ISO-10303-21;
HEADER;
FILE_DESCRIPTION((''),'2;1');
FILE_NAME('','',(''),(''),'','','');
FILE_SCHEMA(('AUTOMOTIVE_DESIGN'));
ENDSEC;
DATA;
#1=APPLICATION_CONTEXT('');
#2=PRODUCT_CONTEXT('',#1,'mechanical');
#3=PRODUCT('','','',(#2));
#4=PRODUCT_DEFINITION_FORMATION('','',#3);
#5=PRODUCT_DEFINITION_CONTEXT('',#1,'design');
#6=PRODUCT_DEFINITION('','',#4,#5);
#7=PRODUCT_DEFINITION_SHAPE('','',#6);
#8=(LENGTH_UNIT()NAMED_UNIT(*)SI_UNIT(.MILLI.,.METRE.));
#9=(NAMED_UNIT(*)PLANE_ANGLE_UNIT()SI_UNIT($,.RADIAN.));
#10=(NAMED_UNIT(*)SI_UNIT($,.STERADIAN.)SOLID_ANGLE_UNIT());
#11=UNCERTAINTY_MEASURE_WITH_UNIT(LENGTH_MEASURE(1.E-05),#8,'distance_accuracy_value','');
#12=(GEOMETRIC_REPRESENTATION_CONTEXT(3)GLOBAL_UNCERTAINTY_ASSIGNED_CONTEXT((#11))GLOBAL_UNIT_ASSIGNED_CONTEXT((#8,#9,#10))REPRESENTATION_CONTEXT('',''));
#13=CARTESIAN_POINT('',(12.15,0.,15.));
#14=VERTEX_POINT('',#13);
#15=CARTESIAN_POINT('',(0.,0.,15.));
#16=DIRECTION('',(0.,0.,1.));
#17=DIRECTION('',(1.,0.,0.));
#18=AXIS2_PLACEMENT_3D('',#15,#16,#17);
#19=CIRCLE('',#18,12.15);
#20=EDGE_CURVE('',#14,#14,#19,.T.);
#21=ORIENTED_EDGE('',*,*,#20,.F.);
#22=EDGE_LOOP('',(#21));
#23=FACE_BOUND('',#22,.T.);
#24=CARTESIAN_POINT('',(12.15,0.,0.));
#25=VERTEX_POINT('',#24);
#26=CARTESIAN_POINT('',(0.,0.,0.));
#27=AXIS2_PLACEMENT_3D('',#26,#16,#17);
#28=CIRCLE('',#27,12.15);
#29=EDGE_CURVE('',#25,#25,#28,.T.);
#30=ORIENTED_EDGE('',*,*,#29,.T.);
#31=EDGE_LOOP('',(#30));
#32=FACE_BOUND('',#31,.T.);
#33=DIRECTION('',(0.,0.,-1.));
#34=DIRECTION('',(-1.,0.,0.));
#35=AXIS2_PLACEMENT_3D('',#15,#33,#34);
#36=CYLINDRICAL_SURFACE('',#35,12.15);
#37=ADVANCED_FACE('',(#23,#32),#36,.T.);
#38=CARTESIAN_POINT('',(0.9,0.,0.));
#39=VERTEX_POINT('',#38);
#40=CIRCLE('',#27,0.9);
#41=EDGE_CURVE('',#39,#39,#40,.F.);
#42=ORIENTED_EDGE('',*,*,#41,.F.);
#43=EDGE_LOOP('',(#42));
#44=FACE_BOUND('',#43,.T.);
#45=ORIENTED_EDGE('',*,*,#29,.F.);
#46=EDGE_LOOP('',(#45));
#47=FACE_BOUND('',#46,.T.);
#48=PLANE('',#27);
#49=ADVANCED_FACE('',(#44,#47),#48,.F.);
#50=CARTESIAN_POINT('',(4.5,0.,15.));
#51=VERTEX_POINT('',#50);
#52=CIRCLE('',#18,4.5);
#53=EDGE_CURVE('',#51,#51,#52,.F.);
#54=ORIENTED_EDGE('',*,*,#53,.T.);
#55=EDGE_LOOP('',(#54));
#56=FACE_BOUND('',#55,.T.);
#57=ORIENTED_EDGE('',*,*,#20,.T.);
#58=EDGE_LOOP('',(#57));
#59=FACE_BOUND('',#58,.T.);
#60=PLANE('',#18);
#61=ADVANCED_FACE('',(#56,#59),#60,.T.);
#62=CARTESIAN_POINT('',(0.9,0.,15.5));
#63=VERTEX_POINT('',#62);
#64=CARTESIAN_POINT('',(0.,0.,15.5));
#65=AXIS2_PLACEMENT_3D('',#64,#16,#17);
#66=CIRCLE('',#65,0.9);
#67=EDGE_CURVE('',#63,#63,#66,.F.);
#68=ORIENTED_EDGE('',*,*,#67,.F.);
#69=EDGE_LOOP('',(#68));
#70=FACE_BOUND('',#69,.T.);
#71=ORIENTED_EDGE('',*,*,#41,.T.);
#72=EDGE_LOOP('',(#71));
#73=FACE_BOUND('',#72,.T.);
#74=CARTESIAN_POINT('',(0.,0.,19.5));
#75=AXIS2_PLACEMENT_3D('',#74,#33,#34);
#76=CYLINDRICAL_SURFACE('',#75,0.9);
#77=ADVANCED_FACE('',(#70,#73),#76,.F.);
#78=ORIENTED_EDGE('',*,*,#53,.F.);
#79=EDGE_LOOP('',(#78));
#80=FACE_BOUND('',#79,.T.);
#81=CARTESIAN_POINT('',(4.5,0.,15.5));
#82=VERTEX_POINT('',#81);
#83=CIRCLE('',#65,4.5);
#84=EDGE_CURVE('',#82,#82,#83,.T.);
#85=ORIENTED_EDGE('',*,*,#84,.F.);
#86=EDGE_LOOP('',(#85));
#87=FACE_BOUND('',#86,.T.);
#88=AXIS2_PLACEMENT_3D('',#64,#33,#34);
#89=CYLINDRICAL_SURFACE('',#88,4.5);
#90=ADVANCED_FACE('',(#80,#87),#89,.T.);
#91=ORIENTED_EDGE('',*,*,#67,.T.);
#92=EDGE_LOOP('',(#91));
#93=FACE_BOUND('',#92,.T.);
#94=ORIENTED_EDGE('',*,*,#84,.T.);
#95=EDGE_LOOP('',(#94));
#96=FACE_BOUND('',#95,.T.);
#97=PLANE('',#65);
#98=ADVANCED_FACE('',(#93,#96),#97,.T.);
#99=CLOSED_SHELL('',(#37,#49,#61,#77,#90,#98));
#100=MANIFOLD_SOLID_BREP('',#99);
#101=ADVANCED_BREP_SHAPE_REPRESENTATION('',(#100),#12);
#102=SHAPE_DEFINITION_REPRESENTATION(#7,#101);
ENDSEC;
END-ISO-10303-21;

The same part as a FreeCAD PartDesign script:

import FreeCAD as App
import Part
import Sketcher

doc = App.newDocument("Part")
params = doc.addObject("Spreadsheet::Sheet", "Params")
for row, (alias, value) in enumerate([
    ("sketch1_diameter", "24.3 mm"),
    ("pad1_length", "15 mm"),
    ("sketch2_diameter", "9 mm"),
    ("pad2_length", "15.5 mm"),
    ("sketch3_diameter", "1.8 mm"),
], start=1):
    params.set(f"A{row}", alias)
    params.set(f"B{row}", "=" + value)
    params.setAlias(f"B{row}", alias)

body = doc.addObject("PartDesign::Body", "Body")

# Sketch on XY plane
sketch1 = doc.addObject("Sketcher::SketchObject", "Sketch")
body.addObject(sketch1)
sketch1.AttachmentSupport = (doc.XY_Plane, [""])
sketch1.MapMode = "FlatFace"
sketch1.addGeometry(Part.Circle(App.Vector(0, 0, 0), App.Vector(0, 0, 1), 12), False)
sketch1.addConstraint([
    Sketcher.Constraint("Coincident", 0, 3, -1, 1),
    Sketcher.Constraint("Diameter", 0, 24.3),
])
sketch1.setExpression("Constraints[1]", "Params.sketch1_diameter")
pad1 = doc.addObject("PartDesign::Pad", "Pad")
body.addObject(pad1)
pad1.Profile = sketch1
pad1.setExpression("Length", "Params.pad1_length")

# Sketch on XY plane
sketch2 = doc.addObject("Sketcher::SketchObject", "Sketch001")
body.addObject(sketch2)
sketch2.AttachmentSupport = (doc.XY_Plane, [""])
sketch2.MapMode = "FlatFace"
sketch2.addGeometry(Part.Circle(App.Vector(0, 0, 0), App.Vector(0, 0, 1), 4.5), False)
sketch2.addConstraint([
    Sketcher.Constraint("Coincident", 0, 3, -1, 1),
    Sketcher.Constraint("Diameter", 0, 9.0),
])
sketch2.setExpression("Constraints[1]", "Params.sketch2_diameter")
pad2 = doc.addObject("PartDesign::Pad", "Pad001")
body.addObject(pad2)
pad2.Profile = sketch2
pad2.setExpression("Length", "Params.pad2_length")

# Sketch on XY plane
sketch3 = doc.addObject("Sketcher::SketchObject", "Sketch002")
body.addObject(sketch3)
sketch3.AttachmentSupport = (doc.XY_Plane, [""])
sketch3.MapMode = "FlatFace"
sketch3.addGeometry(Part.Circle(App.Vector(0, 0, 0), App.Vector(0, 0, 1), 0.9), False)
sketch3.addConstraint([
    Sketcher.Constraint("Coincident", 0, 3, -1, 1),
    Sketcher.Constraint("Diameter", 0, 1.8),
])
sketch3.setExpression("Constraints[1]", "Params.sketch3_diameter")
pocket1 = doc.addObject("PartDesign::Pocket", "Pocket")
body.addObject(pocket1)
pocket1.Profile = sketch3
pocket1.Type = "ThroughAll"
pocket1.Midplane = True

doc.recompute()
